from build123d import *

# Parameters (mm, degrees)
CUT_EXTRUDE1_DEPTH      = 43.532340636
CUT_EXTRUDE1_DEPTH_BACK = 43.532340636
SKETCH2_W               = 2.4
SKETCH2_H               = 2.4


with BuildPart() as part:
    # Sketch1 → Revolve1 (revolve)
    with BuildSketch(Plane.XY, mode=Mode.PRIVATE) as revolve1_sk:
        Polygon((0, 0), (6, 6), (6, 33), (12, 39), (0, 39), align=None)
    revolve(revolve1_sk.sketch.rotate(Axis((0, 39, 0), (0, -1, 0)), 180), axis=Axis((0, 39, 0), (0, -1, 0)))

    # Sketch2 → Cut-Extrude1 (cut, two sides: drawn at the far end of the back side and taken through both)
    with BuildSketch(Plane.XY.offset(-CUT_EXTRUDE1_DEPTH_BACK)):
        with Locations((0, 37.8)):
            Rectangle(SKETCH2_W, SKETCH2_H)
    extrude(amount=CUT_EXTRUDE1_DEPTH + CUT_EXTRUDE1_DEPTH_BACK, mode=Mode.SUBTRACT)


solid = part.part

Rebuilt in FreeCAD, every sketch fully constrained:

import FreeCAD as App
import Part
import Sketcher
Q = App.Units.Quantity


def add_polygon(sketch, points):
    """Adds a closed chain of lines whose ends are joined by coincident constraints."""
    first, n = sketch.GeometryCount, len(points)
    for a, b in zip(points, points[1:] + points[:1]):
        sketch.addGeometry(Part.LineSegment(App.Vector(*a, 0), App.Vector(*b, 0)), False)
    for i in range(n):
        sketch.addConstraint(Sketcher.Constraint("Coincident", first + i, 2, first + (i + 1) % n, 1))

doc = App.newDocument("Part")
body = doc.addObject("PartDesign::Body", "Body")

# Sketch on XY plane
sketch1 = doc.addObject("Sketcher::SketchObject", "Sketch")
body.addObject(sketch1)
sketch1.AttachmentSupport = (doc.XY_Plane, [""])
sketch1.MapMode = "FlatFace"
add_polygon(sketch1, [(0, 0), (6, 6), (6, 33), (12, 39), (0, 39)])  # lines 0-4
sketch1.addConstraint([
    Sketcher.Constraint("Vertical", 1),
    Sketcher.Constraint("Horizontal", 3),
    Sketcher.Constraint("Vertical", 4),
    Sketcher.Constraint("Coincident", 4, 2, -1, 1),
    Sketcher.Constraint("Parallel", 0, 2),
    Sketcher.Constraint("Equal", 0, 2),
    Sketcher.Constraint("DistanceX", 3, 2, 3, 1, Q("12 mm")),
    Sketcher.Constraint("DistanceY", 1, 1, 1, 2, Q("27 mm")),
    Sketcher.Constraint("DistanceY", 4, 2, 4, 1, Q("39 mm")),
])
revolution = doc.addObject("PartDesign::Revolution", "Revolution")
body.addObject(revolution)
revolution.Profile = sketch1
revolution.ReferenceAxis = (sketch1, ["V_Axis"])
revolution.Angle = 360

# Sketch on XY plane
sketch2 = doc.addObject("Sketcher::SketchObject", "Sketch001")
body.addObject(sketch2)
sketch2.AttachmentSupport = (doc.XY_Plane, [""])
sketch2.MapMode = "FlatFace"
add_polygon(sketch2, [(-1.2, 39), (-1.2, 36.6), (1.2, 36.6), (1.2, 39)])  # lines 0-3
sketch2.addConstraint([
    Sketcher.Constraint("Vertical", 0),
    Sketcher.Constraint("Horizontal", 1),
    Sketcher.Constraint("Vertical", 2),
    Sketcher.Constraint("Horizontal", 3),
    Sketcher.Constraint("Equal", 3, 0),
    Sketcher.Constraint("DistanceX", 1, 1, 1, 2, Q("2.4 mm")),
    Sketcher.Constraint("DistanceY", -1, 1, 2, 2, Q("39 mm")),
    Sketcher.Constraint("DistanceX", 0, 2, -1, 1, Q("1.2 mm")),
])
pocket1 = doc.addObject("PartDesign::Pocket", "Pocket")
body.addObject(pocket1)
pocket1.Profile = sketch2
pocket1.Type = "ThroughAll"
pocket1.Midplane = True

doc.recompute()
